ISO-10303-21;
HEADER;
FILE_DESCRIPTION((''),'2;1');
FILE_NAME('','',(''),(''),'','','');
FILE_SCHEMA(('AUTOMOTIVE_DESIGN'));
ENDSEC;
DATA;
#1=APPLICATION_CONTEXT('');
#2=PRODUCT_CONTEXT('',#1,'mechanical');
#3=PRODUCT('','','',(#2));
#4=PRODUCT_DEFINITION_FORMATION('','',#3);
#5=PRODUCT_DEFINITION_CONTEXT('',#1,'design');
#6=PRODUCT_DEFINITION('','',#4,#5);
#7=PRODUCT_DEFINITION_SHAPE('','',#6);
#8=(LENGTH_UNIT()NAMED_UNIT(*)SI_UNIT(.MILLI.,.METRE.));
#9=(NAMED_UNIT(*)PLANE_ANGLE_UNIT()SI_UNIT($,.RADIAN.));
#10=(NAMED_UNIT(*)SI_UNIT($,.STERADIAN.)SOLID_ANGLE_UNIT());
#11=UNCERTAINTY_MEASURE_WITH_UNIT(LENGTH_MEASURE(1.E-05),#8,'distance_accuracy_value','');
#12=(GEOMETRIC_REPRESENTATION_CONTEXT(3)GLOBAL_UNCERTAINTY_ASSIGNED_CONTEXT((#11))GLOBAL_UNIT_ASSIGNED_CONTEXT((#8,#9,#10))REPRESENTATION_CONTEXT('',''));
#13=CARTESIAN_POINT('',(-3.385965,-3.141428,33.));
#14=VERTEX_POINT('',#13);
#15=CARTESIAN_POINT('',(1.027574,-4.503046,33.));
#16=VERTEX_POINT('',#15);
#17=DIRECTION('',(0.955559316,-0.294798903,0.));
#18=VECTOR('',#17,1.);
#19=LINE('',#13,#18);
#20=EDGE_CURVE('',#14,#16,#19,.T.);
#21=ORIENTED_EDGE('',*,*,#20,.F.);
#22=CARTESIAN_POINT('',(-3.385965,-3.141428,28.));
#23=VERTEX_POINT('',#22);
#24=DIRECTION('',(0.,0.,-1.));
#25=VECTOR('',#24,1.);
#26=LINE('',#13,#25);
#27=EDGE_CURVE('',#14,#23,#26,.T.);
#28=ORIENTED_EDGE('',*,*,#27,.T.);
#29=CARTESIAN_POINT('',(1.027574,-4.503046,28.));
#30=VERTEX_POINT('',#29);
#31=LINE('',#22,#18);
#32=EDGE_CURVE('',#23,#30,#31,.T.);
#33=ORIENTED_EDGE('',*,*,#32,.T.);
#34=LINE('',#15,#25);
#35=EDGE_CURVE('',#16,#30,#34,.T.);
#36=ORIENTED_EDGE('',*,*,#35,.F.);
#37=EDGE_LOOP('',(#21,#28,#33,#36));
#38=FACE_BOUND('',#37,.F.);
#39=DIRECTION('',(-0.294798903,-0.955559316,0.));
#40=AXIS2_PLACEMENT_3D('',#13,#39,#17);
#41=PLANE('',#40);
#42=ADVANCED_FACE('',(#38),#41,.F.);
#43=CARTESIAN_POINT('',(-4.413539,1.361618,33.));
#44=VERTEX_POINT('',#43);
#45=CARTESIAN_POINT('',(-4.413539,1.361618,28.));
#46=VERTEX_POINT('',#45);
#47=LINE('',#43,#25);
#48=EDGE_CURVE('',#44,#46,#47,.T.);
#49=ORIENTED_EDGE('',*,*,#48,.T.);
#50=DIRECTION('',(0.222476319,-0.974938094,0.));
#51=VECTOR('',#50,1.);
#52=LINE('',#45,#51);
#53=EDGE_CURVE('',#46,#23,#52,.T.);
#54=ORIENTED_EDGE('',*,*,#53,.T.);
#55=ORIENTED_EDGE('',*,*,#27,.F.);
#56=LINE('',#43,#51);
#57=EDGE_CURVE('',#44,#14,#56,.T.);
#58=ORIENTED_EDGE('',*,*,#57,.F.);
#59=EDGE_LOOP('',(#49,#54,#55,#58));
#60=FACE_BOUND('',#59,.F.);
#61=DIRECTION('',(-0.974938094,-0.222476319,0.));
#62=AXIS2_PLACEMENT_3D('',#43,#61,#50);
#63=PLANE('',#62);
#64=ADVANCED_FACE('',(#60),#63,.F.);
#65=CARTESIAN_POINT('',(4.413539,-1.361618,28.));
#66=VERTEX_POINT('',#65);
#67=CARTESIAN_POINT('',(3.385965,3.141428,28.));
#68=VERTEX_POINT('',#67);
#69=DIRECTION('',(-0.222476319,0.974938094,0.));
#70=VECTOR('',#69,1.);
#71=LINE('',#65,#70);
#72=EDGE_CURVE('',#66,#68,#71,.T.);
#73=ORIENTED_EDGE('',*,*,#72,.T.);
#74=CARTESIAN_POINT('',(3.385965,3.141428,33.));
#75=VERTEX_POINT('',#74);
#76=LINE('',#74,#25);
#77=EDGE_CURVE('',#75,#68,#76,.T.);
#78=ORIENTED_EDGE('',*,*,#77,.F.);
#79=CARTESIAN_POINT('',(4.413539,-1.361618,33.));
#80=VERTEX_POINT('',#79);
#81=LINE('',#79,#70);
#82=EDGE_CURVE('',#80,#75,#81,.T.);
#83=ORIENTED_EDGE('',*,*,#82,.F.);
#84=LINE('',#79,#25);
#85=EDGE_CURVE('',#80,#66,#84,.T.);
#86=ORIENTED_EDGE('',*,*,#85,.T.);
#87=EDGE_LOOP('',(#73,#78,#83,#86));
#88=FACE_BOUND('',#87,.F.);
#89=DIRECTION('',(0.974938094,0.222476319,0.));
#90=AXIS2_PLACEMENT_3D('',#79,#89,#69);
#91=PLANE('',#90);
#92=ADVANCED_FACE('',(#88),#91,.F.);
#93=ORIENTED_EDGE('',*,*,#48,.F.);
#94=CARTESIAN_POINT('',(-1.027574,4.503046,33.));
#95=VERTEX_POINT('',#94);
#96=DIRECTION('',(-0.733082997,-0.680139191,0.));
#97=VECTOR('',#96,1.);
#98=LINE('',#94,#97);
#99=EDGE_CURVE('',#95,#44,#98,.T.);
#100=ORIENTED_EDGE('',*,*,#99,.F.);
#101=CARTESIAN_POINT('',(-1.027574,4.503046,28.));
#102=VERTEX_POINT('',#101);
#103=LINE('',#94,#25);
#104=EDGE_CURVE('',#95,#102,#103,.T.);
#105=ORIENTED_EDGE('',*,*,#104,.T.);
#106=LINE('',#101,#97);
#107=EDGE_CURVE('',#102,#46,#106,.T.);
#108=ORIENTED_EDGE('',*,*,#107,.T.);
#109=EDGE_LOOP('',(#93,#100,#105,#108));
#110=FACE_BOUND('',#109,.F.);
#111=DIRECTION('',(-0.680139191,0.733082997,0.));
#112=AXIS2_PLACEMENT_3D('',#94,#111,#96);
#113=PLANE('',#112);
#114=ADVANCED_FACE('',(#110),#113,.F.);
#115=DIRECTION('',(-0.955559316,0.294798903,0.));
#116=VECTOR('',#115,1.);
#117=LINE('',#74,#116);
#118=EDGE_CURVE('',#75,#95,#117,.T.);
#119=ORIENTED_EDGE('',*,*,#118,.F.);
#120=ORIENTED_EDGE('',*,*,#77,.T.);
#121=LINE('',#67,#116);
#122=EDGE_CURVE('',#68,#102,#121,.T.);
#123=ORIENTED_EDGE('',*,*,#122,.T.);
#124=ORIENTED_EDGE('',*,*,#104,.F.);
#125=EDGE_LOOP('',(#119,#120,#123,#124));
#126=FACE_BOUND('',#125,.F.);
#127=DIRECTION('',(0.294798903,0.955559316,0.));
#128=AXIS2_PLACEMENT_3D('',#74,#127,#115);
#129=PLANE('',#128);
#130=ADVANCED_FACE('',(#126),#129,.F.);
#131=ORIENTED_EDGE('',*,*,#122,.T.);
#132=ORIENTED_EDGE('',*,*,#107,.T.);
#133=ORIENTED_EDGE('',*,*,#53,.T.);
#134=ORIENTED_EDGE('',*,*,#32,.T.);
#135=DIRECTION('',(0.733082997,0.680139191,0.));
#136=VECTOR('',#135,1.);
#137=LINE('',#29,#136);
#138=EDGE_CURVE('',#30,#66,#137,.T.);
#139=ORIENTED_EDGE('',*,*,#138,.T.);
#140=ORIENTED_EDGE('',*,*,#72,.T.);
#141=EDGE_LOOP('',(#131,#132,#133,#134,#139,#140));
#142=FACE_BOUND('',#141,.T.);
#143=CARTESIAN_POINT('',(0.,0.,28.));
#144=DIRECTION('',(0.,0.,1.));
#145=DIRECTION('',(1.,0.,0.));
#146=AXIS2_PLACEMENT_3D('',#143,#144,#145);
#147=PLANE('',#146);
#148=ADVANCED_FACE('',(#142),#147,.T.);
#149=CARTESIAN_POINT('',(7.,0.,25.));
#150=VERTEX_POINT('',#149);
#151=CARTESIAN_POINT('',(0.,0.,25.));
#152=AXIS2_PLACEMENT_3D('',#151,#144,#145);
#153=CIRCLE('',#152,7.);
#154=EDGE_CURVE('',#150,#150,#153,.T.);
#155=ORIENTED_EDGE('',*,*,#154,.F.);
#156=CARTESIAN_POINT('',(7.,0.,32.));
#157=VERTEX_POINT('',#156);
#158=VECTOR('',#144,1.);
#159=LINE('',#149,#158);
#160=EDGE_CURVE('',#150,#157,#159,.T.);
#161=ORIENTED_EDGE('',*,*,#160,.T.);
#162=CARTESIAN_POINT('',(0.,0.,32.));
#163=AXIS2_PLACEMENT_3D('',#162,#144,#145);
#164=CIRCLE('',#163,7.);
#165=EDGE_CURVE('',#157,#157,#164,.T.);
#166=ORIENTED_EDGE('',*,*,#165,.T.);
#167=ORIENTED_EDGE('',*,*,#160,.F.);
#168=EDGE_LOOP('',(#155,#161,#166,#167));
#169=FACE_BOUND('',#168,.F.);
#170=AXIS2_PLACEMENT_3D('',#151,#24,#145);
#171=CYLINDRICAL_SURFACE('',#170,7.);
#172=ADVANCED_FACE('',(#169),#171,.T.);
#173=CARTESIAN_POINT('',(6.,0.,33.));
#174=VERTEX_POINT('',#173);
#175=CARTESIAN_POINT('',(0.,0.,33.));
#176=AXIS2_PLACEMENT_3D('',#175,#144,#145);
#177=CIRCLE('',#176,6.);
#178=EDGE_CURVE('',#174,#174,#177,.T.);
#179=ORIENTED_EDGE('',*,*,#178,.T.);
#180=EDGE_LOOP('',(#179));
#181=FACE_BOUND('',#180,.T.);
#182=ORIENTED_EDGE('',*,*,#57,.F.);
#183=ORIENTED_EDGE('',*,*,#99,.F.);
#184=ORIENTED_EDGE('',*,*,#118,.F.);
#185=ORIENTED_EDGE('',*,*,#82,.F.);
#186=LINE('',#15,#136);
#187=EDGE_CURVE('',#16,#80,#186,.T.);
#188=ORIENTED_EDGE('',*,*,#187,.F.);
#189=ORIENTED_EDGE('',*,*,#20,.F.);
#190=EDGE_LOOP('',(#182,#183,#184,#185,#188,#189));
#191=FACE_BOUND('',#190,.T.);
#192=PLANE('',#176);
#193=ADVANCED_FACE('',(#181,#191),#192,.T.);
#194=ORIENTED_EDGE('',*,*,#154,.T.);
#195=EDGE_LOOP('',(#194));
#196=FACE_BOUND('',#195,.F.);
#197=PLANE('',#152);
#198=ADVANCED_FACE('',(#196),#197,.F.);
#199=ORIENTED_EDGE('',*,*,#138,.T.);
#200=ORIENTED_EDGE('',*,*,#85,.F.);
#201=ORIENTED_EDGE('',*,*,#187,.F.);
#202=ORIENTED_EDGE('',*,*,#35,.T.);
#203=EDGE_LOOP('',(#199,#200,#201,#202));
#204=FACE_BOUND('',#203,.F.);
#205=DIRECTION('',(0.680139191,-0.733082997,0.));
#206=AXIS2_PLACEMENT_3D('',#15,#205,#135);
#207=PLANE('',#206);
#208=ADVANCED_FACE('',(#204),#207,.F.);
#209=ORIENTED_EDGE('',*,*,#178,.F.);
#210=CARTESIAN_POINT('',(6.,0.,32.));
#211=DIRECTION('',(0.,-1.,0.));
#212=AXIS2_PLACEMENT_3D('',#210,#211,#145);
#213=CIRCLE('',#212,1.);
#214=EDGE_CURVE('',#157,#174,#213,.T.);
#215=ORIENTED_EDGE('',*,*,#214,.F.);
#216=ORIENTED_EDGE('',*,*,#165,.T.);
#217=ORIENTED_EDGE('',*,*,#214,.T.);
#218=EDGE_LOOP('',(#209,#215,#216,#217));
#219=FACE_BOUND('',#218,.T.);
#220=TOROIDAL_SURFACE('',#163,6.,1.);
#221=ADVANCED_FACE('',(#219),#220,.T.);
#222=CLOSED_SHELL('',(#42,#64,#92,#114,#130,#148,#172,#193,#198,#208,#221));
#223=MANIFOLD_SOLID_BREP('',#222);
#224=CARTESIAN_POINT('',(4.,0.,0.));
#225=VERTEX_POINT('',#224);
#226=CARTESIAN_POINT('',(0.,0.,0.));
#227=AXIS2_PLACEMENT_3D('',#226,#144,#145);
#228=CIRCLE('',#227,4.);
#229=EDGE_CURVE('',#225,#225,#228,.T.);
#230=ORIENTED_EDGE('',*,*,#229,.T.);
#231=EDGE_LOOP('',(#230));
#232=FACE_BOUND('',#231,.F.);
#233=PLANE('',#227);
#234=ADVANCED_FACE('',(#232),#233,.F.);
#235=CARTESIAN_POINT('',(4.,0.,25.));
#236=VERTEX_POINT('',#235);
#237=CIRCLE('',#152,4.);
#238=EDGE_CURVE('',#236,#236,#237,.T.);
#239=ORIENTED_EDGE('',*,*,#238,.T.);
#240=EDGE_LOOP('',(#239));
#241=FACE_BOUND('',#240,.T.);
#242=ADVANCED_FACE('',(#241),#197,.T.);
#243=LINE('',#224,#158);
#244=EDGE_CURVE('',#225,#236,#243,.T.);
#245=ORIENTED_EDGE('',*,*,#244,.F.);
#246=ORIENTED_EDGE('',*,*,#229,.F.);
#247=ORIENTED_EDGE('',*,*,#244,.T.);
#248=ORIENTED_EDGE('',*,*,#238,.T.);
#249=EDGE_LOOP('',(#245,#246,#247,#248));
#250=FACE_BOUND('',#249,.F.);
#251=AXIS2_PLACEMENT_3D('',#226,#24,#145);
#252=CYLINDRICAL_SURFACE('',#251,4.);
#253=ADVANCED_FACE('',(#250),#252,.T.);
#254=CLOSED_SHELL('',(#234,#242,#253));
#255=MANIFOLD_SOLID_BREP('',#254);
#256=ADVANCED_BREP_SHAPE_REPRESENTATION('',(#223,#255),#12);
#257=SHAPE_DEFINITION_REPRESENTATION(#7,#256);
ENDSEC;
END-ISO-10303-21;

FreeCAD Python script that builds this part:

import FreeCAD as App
import Part
import Sketcher
from FreeCAD import Vector


def edges_at(feature, points):
    """Names of the edges that pass closest to the given points."""
    edges = feature.Shape.Edges
    near = lambda p: min(range(len(edges)), key=lambda i: edges[i].distToShape(Part.Vertex(*p))[0])
    return sorted({f"Edge{near(p) + 1}" for p in points})

doc = App.newDocument("Part")
body = doc.addObject("PartDesign::Body", "Body")

# Sketch on XY plane
sketch1 = doc.addObject("Sketcher::SketchObject", "Sketch")
body.addObject(sketch1)
sketch1.AttachmentSupport = (doc.XY_Plane, [""])
sketch1.MapMode = "FlatFace"
sketch1.addGeometry(Part.Circle(Vector(0, 0, 0), Vector(0, 0, 1), 4), False)
sketch1.addConstraint([
    Sketcher.Constraint("Coincident", 0, 3, -1, 1),
    Sketcher.Constraint("Diameter", 0, 8.0),
])
pad1 = doc.addObject("PartDesign::Pad", "Pad")
body.addObject(pad1)
pad1.Profile = sketch1
pad1.Length = 25
body2 = doc.addObject("PartDesign::Body", "Body001")

# Sketch on XY plane
sketch2 = doc.addObject("Sketcher::SketchObject", "Sketch001")
body2.addObject(sketch2)
sketch2.AttachmentSupport = (doc.getObject("XY_Plane001"), [""])
sketch2.MapMode = "FlatFace"
sketch2.AttachmentOffset = App.Placement(Vector(0, 0, 25), App.Rotation())
sketch2.addGeometry(Part.Circle(Vector(0, 0, 0), Vector(0, 0, 1), 7), False)
sketch2.addConstraint([
    Sketcher.Constraint("Coincident", 0, 3, -1, 1),
    Sketcher.Constraint("Diameter", 0, 14.0),
])
pad2 = doc.addObject("PartDesign::Pad", "Pad001")
body2.addObject(pad2)
pad2.Profile = sketch2
pad2.Length = 8

# Sketch on XY plane
sketch3 = doc.addObject("Sketcher::SketchObject", "Sketch002")
body2.addObject(sketch3)
sketch3.AttachmentSupport = (doc.getObject("XY_Plane001"), [""])
sketch3.MapMode = "FlatFace"
sketch3.AttachmentOffset = App.Placement(Vector(0, 0, 33), App.Rotation())
sketch3.addGeometry([
    Part.LineSegment(Vector(1, -4.5, 0), Vector(4.4, -1.4, 0)),  # 0
    Part.LineSegment(Vector(4.4, -1.4, 0), Vector(3.4, 3.1, 0)),  # 1
    Part.LineSegment(Vector(3.4, 3.1, 0), Vector(-1, 4.5, 0)),  # 2
    Part.LineSegment(Vector(-1, 4.5, 0), Vector(-4.4, 1.4, 0)),  # 3
    Part.LineSegment(Vector(-4.4, 1.4, 0), Vector(-3.4, -3.1, 0)),  # 4
    Part.LineSegment(Vector(-3.4, -3.1, 0), Vector(1, -4.5, 0)),  # 5
], False)
sketch3.addConstraint([
    Sketcher.Constraint("Coincident", 0, 2, 1, 1),
    Sketcher.Constraint("Coincident", 1, 2, 2, 1),
    Sketcher.Constraint("Coincident", 2, 2, 3, 1),
    Sketcher.Constraint("Coincident", 3, 2, 4, 1),
    Sketcher.Constraint("Coincident", 4, 2, 5, 1),
    Sketcher.Constraint("Coincident", 5, 2, 0, 1),
    Sketcher.Constraint("Symmetric", 0, 2, 3, 2, -1, 1),
    Sketcher.Constraint("Symmetric", 1, 2, 4, 2, -1, 1),
    Sketcher.Constraint("Symmetric", 2, 2, 5, 2, -1, 1),
    Sketcher.Constraint("Equal", 0, 1),
    Sketcher.Constraint("Equal", 1, 2),
    Sketcher.Constraint("DistanceX", -1, 1, 0, 2, 4.413539),
    Sketcher.Constraint("DistanceY", -1, 1, 1, 2, 3.141428),
    Sketcher.Constraint("DistanceX", 2, 2, 1, 2, 4.413539),
    Sketcher.Constraint("DistanceY", 3, 2, 2, 2, 3.141428),
])
pocket1 = doc.addObject("PartDesign::Pocket", "Pocket")
body2.addObject(pocket1)
pocket1.Profile = sketch3
pocket1.Length = 5
doc.recompute()

fillet = doc.addObject("PartDesign::Fillet", "Fillet")
body2.addObject(fillet)
fillet.Base = (pocket1, edges_at(pocket1, [(-7, 0, 33)]))
fillet.Radius = 1

doc.recompute()
